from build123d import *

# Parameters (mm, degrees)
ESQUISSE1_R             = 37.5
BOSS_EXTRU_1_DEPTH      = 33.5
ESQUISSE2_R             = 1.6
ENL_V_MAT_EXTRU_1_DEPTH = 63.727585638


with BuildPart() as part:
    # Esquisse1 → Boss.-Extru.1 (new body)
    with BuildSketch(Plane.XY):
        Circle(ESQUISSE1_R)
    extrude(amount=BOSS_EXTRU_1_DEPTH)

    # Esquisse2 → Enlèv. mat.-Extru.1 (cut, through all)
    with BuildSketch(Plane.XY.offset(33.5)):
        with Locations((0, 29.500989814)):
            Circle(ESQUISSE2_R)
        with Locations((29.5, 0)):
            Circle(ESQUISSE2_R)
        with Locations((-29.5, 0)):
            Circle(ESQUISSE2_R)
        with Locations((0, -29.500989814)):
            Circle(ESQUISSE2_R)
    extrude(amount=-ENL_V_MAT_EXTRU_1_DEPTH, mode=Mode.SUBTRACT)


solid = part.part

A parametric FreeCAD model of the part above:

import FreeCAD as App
import Part
import Sketcher
from FreeCAD import Vector

doc = App.newDocument("Part")
body = doc.addObject("PartDesign::Body", "Body")

# Sketch on XY plane
sketch1 = body.newObject("Sketcher::SketchObject", "Sketch")
sketch1.AttachmentSupport = (doc.getObject("XY_Plane"), [""])
sketch1.MapMode = "FlatFace"
sketch1.addGeometry(Part.Circle(Vector(0, 0, 0), Vector(0, 0, 1), 38), False)
sketch1.addConstraint([
    Sketcher.Constraint("Coincident", 0, 3, -1, 1),
    Sketcher.Constraint("Diameter", 0, 75.0),
])
pad1 = body.newObject("PartDesign::Pad", "Pad")
pad1.Profile = sketch1
pad1.Length = 33.5

# Sketch on XY plane
sketch2 = body.newObject("Sketcher::SketchObject", "Sketch001")
sketch2.AttachmentSupport = (doc.getObject("XY_Plane"), [""])
sketch2.MapMode = "FlatFace"
sketch2.AttachmentOffset = App.Placement(Vector(0, 0, 33.5), App.Rotation())
sketch2.addGeometry([
    Part.Circle(Vector(0, 29.5, 0), Vector(0, 0, 1), 1.6),
    Part.Circle(Vector(29.5, 0, 0), Vector(0, 0, 1), 1.6),
    Part.Circle(Vector(-29.5, 0, 0), Vector(0, 0, 1), 1.6),
    Part.Circle(Vector(0, -29.5, 0), Vector(0, 0, 1), 1.6),
], False)
sketch2.addConstraint([
    Sketcher.Constraint("Equal", 0, 1),
    Sketcher.Constraint("Equal", 1, 2),
    Sketcher.Constraint("Equal", 2, 3),
    Sketcher.Constraint("Symmetric", 1, 3, 2, 3, -1, 1),
    Sketcher.Constraint("Symmetric", 0, 3, 3, 3, -1, 1),
    Sketcher.Constraint("PointOnObject", 0, 3, -2),
    Sketcher.Constraint("PointOnObject", 1, 3, -1),
    Sketcher.Constraint("Diameter", 0, 3.2),
    Sketcher.Constraint("DistanceX", 2, 3, 1, 3, 59.0),
    Sketcher.Constraint("DistanceY", -1, 1, 0, 3, 29.50099),
])
pocket1 = body.newObject("PartDesign::Pocket", "Pocket")
pocket1.Profile = sketch2
pocket1.Type = "ThroughAll"

doc.recompute()
